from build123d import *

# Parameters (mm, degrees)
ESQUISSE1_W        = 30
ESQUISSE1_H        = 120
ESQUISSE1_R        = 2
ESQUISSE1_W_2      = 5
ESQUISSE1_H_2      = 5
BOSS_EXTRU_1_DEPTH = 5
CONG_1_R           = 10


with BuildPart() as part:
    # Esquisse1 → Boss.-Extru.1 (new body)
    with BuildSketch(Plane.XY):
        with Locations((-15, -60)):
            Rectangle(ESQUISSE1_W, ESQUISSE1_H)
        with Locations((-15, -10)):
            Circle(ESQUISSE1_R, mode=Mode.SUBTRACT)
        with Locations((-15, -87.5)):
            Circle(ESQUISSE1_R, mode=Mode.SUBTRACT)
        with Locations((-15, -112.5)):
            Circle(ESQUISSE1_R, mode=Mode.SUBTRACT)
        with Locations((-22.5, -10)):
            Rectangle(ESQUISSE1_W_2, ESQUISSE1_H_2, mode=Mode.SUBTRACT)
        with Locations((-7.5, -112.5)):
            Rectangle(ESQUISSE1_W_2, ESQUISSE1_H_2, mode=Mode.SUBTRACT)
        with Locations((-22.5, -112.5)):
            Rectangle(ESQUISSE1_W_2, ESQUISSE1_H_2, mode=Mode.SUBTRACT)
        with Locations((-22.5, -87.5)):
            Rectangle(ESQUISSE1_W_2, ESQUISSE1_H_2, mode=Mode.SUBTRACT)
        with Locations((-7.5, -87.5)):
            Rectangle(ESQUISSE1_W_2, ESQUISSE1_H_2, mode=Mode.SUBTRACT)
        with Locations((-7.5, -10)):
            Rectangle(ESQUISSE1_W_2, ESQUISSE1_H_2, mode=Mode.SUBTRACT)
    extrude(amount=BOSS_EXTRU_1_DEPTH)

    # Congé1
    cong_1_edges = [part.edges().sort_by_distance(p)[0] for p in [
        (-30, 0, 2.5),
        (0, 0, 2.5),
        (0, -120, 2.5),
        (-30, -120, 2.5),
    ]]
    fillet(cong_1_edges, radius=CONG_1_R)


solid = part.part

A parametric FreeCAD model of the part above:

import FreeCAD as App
import Part
import Sketcher
from FreeCAD import Vector


def edges_at(feature, points):
    """Names of the edges that pass closest to the given points."""
    edges = feature.Shape.Edges
    near = lambda p: min(range(len(edges)), key=lambda i: edges[i].distToShape(Part.Vertex(*p))[0])
    return sorted({f"Edge{near(p) + 1}" for p in points})


def add_polygon(sketch, points):
    """Adds a closed chain of lines whose ends are joined by coincident constraints."""
    first, n = sketch.GeometryCount, len(points)
    for a, b in zip(points, points[1:] + points[:1]):
        sketch.addGeometry(Part.LineSegment(App.Vector(*a, 0), App.Vector(*b, 0)), False)
    for i in range(n):
        sketch.addConstraint(Sketcher.Constraint("Coincident", first + i, 2, first + (i + 1) % n, 1))

doc = App.newDocument("Part")
params = doc.addObject("Spreadsheet::Sheet", "Params")
for row, (alias, value) in enumerate([
    ("sketch1_diameter", "4 mm"),
    ("sketch1_width", "30 mm"),
    ("sketch1_width2", "5 mm"),
    ("sketch1_height", "120 mm"),
    ("pad1_length", "5 mm"),
    ("fillet_radius", "10 mm"),
], start=1):
    params.set(f"A{row}", alias)
    params.set(f"B{row}", "=" + value)
    params.setAlias(f"B{row}", alias)

body = doc.addObject("PartDesign::Body", "Body")

sketch1 = doc.addObject("Sketcher::SketchObject", "Sketch")
body.addObject(sketch1)
sketch1.AttachmentSupport = (doc.XY_Plane, [""])
sketch1.MapMode = "FlatFace"
add_polygon(sketch1, [(-30, 0), (-30, -120), (0, -120), (0, 0)])
add_polygon(sketch1, [(-20, -115), (-25, -115), (-25, -110), (-20, -110)])
add_polygon(sketch1, [(-20, -90), (-25, -90), (-25, -85), (-20, -85)])
sketch1.addGeometry(Part.Circle(Vector(-15, -112.5, 0), Vector(0, 0, 1), 2), False)
add_polygon(sketch1, [(-5, -115), (-10, -115), (-10, -110), (-5, -110)])
sketch1.addGeometry(Part.Circle(Vector(-15, -87.5, 0), Vector(0, 0, 1), 2), False)
add_polygon(sketch1, [(-5, -90), (-10, -90), (-10, -85), (-5, -85)])
add_polygon(sketch1, [(-20, -12.5), (-25, -12.5), (-25, -7.5), (-20, -7.5)])
sketch1.addGeometry(Part.Circle(Vector(-15, -10, 0), Vector(0, 0, 1), 2), False)
add_polygon(sketch1, [(-5, -12.5), (-10, -12.5), (-10, -7.5), (-5, -7.5)])
sketch1.addConstraint([
    Sketcher.Constraint("Vertical", 0),
    Sketcher.Constraint("Horizontal", 1),
    Sketcher.Constraint("Vertical", 2),
    Sketcher.Constraint("Horizontal", 3),
    Sketcher.Constraint("Horizontal", 4),
    Sketcher.Constraint("Vertical", 5),
    Sketcher.Constraint("Horizontal", 6),
    Sketcher.Constraint("Vertical", 7),
    Sketcher.Constraint("Horizontal", 8),
    Sketcher.Constraint("Vertical", 9),
    Sketcher.Constraint("Horizontal", 10),
    Sketcher.Constraint("Vertical", 11),
    Sketcher.Constraint("Horizontal", 13),
    Sketcher.Constraint("Vertical", 14),
    Sketcher.Constraint("Horizontal", 15),
    Sketcher.Constraint("Vertical", 16),
    Sketcher.Constraint("Horizontal", 18),
    Sketcher.Constraint("Vertical", 19),
    Sketcher.Constraint("Horizontal", 20),
    Sketcher.Constraint("Vertical", 21),
    Sketcher.Constraint("Horizontal", 22),
    Sketcher.Constraint("Vertical", 23),
    Sketcher.Constraint("Horizontal", 24),
    Sketcher.Constraint("Vertical", 25),
    Sketcher.Constraint("Horizontal", 27),
    Sketcher.Constraint("Vertical", 28),
    Sketcher.Constraint("Horizontal", 29),
    Sketcher.Constraint("Vertical", 30),
    Sketcher.Constraint("Coincident", 2, 2, -1, 1),
    Sketcher.Constraint("Equal", 12, 17),
    Sketcher.Constraint("Equal", 17, 26),
    Sketcher.Constraint("Horizontal", 7, 2, 13, 2),
    Sketcher.Constraint("Horizontal", 6, 2, 14, 2),
    Sketcher.Constraint("Horizontal", 11, 2, 18, 2),
    Sketcher.Constraint("Horizontal", 10, 2, 19, 2),
    Sketcher.Constraint("Horizontal", 25, 2, 27, 2),
    Sketcher.Constraint("Horizontal", 24, 2, 28, 2),
    Sketcher.Constraint("Vertical", 12, 3, 17, 3),
    Sketcher.Constraint("Vertical", 17, 3, 26, 3),
    Sketcher.Constraint("Vertical", 5, 2, 8, 2),
    Sketcher.Constraint("Vertical", 7, 2, 10, 2),
    Sketcher.Constraint("Vertical", 14, 2, 18, 2),
    Sketcher.Constraint("Vertical", 16, 2, 20, 2),
    Sketcher.Constraint("Vertical", 9, 2, 22, 2),
    Sketcher.Constraint("Vertical", 11, 2, 24, 2),
    Sketcher.Constraint("Vertical", 19, 2, 27, 2),
    Sketcher.Constraint("Vertical", 21, 2, 29, 2),
    Sketcher.Constraint("Equal", 10, 13),
    Sketcher.Constraint("Equal", 29, 5),
    Sketcher.Constraint("Equal", 7, 9),
    Sketcher.Constraint("Equal", 21, 23),
    Sketcher.Constraint("Diameter", 12, 4.0),
    Sketcher.Constraint("DistanceX", 1, 1, 1, 2, 30.0),
    Sketcher.Constraint("DistanceX", 4, 2, 4, 1, 5.0),
    Sketcher.Constraint("DistanceY", 0, 2, 0, 1, 120.0),
    Sketcher.Constraint("DistanceX", 12, 3, -1, 1, 15.0),
    Sketcher.Constraint("DistanceY", 26, 3, -1, 1, 10.0),
    Sketcher.Constraint("DistanceX", 4, 2, -1, 1, 25.0),
    Sketcher.Constraint("DistanceY", 4, 2, -1, 1, 115.0),
    Sketcher.Constraint("DistanceY", 8, 2, -1, 1, 90.0),
    Sketcher.Constraint("DistanceX", 13, 2, -1, 1, 10.0),
    Sketcher.Constraint("DistanceY", 12, 3, 17, 3, 25.0),
    Sketcher.Constraint("DistanceY", 12, 3, -1, 1, 112.5),
    Sketcher.Constraint("DistanceY", 22, 2, -1, 1, 12.5),
])
sketch1.setExpression("Constraints[79]", "Params.sketch1_diameter")
sketch1.setExpression("Constraints[80]", "Params.sketch1_width")
sketch1.setExpression("Constraints[81]", "Params.sketch1_width2")
sketch1.setExpression("Constraints[82]", "Params.sketch1_height")
pad1 = doc.addObject("PartDesign::Pad", "Pad")
body.addObject(pad1)
pad1.Profile = sketch1
pad1.setExpression("Length", "Params.pad1_length")
doc.recompute()

fillet = doc.addObject("PartDesign::Fillet", "Fillet")
body.addObject(fillet)
fillet.Base = (pad1, edges_at(pad1, [
    (-30, 0, 2.5),
    (0, 0, 2.5),
    (0, -120, 2.5),
    (-30, -120, 2.5),
]))
fillet.setExpression("Radius", "Params.fillet_radius")

doc.recompute()
